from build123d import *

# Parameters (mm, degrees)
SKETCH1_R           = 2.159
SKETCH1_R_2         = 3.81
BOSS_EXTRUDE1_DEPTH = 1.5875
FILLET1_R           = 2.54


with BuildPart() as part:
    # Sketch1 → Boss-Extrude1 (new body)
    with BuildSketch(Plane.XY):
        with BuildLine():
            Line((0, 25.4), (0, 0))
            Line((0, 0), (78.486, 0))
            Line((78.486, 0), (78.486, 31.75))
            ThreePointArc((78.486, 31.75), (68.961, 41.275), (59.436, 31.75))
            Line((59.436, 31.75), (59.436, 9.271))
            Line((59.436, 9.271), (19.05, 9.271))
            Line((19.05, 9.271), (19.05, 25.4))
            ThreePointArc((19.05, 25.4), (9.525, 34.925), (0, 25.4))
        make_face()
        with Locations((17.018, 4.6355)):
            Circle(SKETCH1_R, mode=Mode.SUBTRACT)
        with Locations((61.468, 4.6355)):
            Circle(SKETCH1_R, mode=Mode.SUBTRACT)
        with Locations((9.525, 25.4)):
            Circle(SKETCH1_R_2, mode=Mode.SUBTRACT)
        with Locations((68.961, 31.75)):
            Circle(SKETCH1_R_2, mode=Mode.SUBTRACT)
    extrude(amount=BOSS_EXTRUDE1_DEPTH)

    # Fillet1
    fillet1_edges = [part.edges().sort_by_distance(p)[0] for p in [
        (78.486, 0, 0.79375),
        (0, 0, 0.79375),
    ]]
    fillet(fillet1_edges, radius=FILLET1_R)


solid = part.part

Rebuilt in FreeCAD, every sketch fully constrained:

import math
import FreeCAD as App
import Part
import Sketcher

V = App.Vector
Q = App.Units.Quantity


def edges_at(feature, points):
    """Names of the edges that pass closest to the given points."""
    edges = feature.Shape.Edges
    near = lambda p: min(range(len(edges)), key=lambda i: edges[i].distToShape(Part.Vertex(*p))[0])
    return sorted({f"Edge{near(p) + 1}" for p in points})

doc = App.newDocument("Part")
body = doc.addObject("PartDesign::Body", "Body")

# Sketch on XY plane
sketch1 = body.newObject("Sketcher::SketchObject", "Sketch")
sketch1.AttachmentSupport = (doc.getObject("XY_Plane"), [""])
sketch1.MapMode = "FlatFace"
sketch1.addGeometry([
    Part.LineSegment(V(0, 25.4, 0), V(0, 0, 0)),  # 0
    Part.LineSegment(V(0, 0, 0), V(78.486, 0, 0)),  # 1
    Part.LineSegment(V(78.486, 0, 0), V(78.486, 31.75, 0)),  # 2
    Part.ArcOfCircle(Part.Circle(V(68.961, 31.75, 0), V(0, 0, 1), 9.525), math.radians(0), math.radians(180)),  # 3
    Part.LineSegment(V(59.436, 31.75, 0), V(59.436, 9.271, 0)),  # 4
    Part.LineSegment(V(59.436, 9.271, 0), V(19.05, 9.271, 0)),  # 5
    Part.LineSegment(V(19.05, 9.271, 0), V(19.05, 25.4, 0)),  # 6
    Part.ArcOfCircle(Part.Circle(V(9.525, 25.4, 0), V(0, 0, 1), 9.525), math.radians(0), math.radians(180)),  # 7
    Part.Circle(V(17.018, 4.6355, 0), V(0, 0, 1), 2.159),  # 8
    Part.Circle(V(61.468, 4.6355, 0), V(0, 0, 1), 2.159),  # 9
    Part.Circle(V(9.525, 25.4, 0), V(0, 0, 1), 3.81),  # 10
    Part.Circle(V(68.961, 31.75, 0), V(0, 0, 1), 3.81),  # 11
], False)
sketch1.addConstraint([
    Sketcher.Constraint("Coincident", 0, 2, 1, 1),
    Sketcher.Constraint("Coincident", 1, 2, 2, 1),
    Sketcher.Constraint("Tangent", 2, 2, 3, 1),
    Sketcher.Constraint("Tangent", 3, 2, 4, 1),
    Sketcher.Constraint("Coincident", 4, 2, 5, 1),
    Sketcher.Constraint("Coincident", 5, 2, 6, 1),
    Sketcher.Constraint("Tangent", 6, 2, 7, 1),
    Sketcher.Constraint("Tangent", 7, 2, 0, 1),
    Sketcher.Constraint("Vertical", 0),
    Sketcher.Constraint("Horizontal", 1),
    Sketcher.Constraint("Vertical", 2),
    Sketcher.Constraint("Vertical", 4),
    Sketcher.Constraint("Horizontal", 5),
    Sketcher.Constraint("Vertical", 6),
    Sketcher.Constraint("Coincident", 0, 2, -1, 1),
    Sketcher.Constraint("Coincident", 10, 3, 7, 3),
    Sketcher.Constraint("Coincident", 11, 3, 3, 3),
    Sketcher.Constraint("Equal", 3, 7),
    Sketcher.Constraint("Equal", 8, 9),
    Sketcher.Constraint("Equal", 10, 11),
    Sketcher.Constraint("Horizontal", 8, 3, 9, 3),
    Sketcher.Constraint("Diameter", 10, Q("0.3 in")),
    Sketcher.Constraint("Diameter", 8, Q("0.17 in")),
    Sketcher.Constraint("DistanceY", 0, 2, 0, 1, Q("1 in")),
    Sketcher.Constraint("Radius", 3, Q("0.375 in")),
    Sketcher.Constraint("DistanceX", 1, 1, 1, 2, Q("3.09 in")),
    Sketcher.Constraint("DistanceY", 2, 1, 2, 2, Q("1.25 in")),
    Sketcher.Constraint("DistanceY", 4, 2, 4, 1, Q("0.885 in")),
    Sketcher.Constraint("DistanceX", -1, 1, 8, 3, Q("0.67 in")),
    Sketcher.Constraint("DistanceX", -1, 1, 9, 3, Q("2.42 in")),
    Sketcher.Constraint("DistanceY", -1, 1, 8, 3, Q("0.1825 in")),
])
pad1 = body.newObject("PartDesign::Pad", "Pad")
pad1.Profile = sketch1
pad1.Length = Q("0.0625 in")
doc.recompute()

fillet = body.newObject("PartDesign::Fillet", "Fillet")
fillet.Base = (pad1, edges_at(pad1, [(78.486, 0, 0.794), (0, 0, 0.794)]))
fillet.Radius = Q("0.1 in")

doc.recompute()
